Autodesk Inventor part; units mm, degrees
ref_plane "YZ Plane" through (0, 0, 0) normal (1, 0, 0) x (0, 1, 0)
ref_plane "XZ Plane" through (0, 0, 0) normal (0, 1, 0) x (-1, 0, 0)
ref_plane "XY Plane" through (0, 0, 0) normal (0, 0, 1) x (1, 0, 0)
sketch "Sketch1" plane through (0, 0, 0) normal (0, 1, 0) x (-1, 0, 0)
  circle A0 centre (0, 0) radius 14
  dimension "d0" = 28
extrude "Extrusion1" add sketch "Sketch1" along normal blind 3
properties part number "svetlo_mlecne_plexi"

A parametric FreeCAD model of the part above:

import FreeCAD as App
import Part
import Sketcher
from FreeCAD import Vector

doc = App.newDocument("Part")
params = doc.addObject("Spreadsheet::Sheet", "Params")
for row, (alias, value) in enumerate([
    ("sketch1_diameter", "28 mm"),
    ("pad1_length", "3 mm"),
], start=1):
    params.set(f"A{row}", alias)
    params.set(f"B{row}", "=" + value)
    params.setAlias(f"B{row}", alias)

body = doc.addObject("PartDesign::Body", "Body")

# Sketch on XZ plane
sketch1 = body.newObject("Sketcher::SketchObject", "Sketch")
sketch1.AttachmentSupport = (doc.getObject("XZ_Plane"), [""])
sketch1.MapMode = "FlatFace"
sketch1.addGeometry(Part.Circle(Vector(0, 0, 0), Vector(0, 0, 1), 14), False)
sketch1.addConstraint([
    Sketcher.Constraint("Coincident", 0, 3, -1, 1),
    Sketcher.Constraint("Diameter", 0, 28.0),
])
sketch1.setExpression("Constraints[1]", "Params.sketch1_diameter")
pad1 = body.newObject("PartDesign::Pad", "Pad")
pad1.Profile = sketch1
pad1.setExpression("Length", "Params.pad1_length")
pad1.Reversed = True

doc.recompute()
